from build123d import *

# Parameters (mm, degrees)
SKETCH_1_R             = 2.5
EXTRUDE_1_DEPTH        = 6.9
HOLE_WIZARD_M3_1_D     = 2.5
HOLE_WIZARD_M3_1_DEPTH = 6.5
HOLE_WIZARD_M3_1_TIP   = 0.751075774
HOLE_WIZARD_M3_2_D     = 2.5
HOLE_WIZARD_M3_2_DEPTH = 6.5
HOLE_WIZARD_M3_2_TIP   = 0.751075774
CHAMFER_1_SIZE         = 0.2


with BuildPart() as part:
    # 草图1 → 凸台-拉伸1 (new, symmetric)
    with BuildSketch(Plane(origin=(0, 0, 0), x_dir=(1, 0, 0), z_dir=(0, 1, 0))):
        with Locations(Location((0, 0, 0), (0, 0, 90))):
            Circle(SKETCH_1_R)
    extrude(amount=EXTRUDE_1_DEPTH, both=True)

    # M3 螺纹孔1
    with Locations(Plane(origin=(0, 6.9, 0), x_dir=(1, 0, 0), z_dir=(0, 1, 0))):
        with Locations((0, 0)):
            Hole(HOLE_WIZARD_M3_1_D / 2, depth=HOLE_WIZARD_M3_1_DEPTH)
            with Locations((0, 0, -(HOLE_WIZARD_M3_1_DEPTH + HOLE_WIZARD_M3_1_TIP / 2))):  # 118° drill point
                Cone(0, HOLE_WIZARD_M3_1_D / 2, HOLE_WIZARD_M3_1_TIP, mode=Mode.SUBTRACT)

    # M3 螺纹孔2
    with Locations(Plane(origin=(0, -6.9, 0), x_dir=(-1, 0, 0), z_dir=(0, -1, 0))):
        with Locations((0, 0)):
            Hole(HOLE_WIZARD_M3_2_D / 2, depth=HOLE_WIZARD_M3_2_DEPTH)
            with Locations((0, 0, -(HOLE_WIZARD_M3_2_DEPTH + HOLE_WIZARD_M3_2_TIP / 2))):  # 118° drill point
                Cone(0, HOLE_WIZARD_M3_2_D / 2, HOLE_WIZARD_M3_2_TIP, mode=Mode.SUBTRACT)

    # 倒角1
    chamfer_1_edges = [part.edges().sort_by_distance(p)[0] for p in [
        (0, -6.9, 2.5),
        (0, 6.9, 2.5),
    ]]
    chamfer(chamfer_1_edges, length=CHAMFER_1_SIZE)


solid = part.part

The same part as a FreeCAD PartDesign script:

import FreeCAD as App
import Part
import Sketcher
from FreeCAD import Vector
Q = App.Units.Quantity


def edges_at(feature, points):
    """Names of the edges that pass closest to the given points."""
    edges = feature.Shape.Edges
    near = lambda p: min(range(len(edges)), key=lambda i: edges[i].distToShape(Part.Vertex(*p))[0])
    return sorted({f"Edge{near(p) + 1}" for p in points})

doc = App.newDocument("Part")
body = doc.addObject("PartDesign::Body", "Body")

sketch1 = body.newObject("Sketcher::SketchObject", "Sketch")
sketch1.AttachmentSupport = (doc.getObject("XZ_Plane"), [""])
sketch1.MapMode = "FlatFace"
sketch1.addGeometry(Part.Circle(Vector(0, 0, 0), Vector(0, 0, 1), 2.5), False)
sketch1.addConstraint(Sketcher.Constraint("Coincident", 0, 3, -1, 1))
sketch1.addConstraint(Sketcher.Constraint("Diameter", 0, Q("5 mm")))
pad1 = body.newObject("PartDesign::Pad", "Pad")
pad1.Profile = sketch1
pad1.Length = 13.8
pad1.Midplane = True

sketch2 = body.newObject("Sketcher::SketchObject", "Sketch001")
sketch2.AttachmentSupport = (doc.getObject("XZ_Plane"), [""])
sketch2.MapMode = "FlatFace"
sketch2.AttachmentOffset = App.Placement(Vector(0, 0, -6.9), App.Rotation())
sketch2.addGeometry(Part.Circle(Vector(0, 0, 0), Vector(0, 0, 1), 1.2), False)
sketch2.addConstraint(Sketcher.Constraint("Coincident", 0, 3, -1, 1))
sketch2.addConstraint(Sketcher.Constraint("Diameter", 0, Q("2.5 mm")))
doc.recompute()
hole = body.newObject("PartDesign::Hole", "Hole")
hole.Profile = sketch2
hole.ThreadType = "None"
hole.Diameter = 2.5
hole.DepthType = "Dimension"
hole.Depth = 6.5
hole.DrillPoint = "Angled"
hole.DrillPointAngle = 118
hole.Reversed = True

sketch3 = body.newObject("Sketcher::SketchObject", "Sketch002")
sketch3.AttachmentSupport = (doc.getObject("XZ_Plane"), [""])
sketch3.MapMode = "FlatFace"
sketch3.AttachmentOffset = App.Placement(Vector(0, 0, 6.9), App.Rotation())
sketch3.addGeometry(Part.Circle(Vector(0, 0, 0), Vector(0, 0, 1), 1.2), False)
sketch3.addConstraint(Sketcher.Constraint("Coincident", 0, 3, -1, 1))
sketch3.addConstraint(Sketcher.Constraint("Diameter", 0, Q("2.5 mm")))
doc.recompute()
hole2 = body.newObject("PartDesign::Hole", "Hole001")
hole2.Profile = sketch3
hole2.ThreadType = "None"
hole2.Diameter = 2.5
hole2.DepthType = "Dimension"
hole2.Depth = 6.5
hole2.DrillPoint = "Angled"
hole2.DrillPointAngle = 118
doc.recompute()

chamfer = body.newObject("PartDesign::Chamfer", "Chamfer")
chamfer.Base = (hole2, edges_at(hole2, [(0, -6.9, 2.5), (0, 6.9, 2.5)]))
chamfer.Size = 0.2

doc.recompute()
